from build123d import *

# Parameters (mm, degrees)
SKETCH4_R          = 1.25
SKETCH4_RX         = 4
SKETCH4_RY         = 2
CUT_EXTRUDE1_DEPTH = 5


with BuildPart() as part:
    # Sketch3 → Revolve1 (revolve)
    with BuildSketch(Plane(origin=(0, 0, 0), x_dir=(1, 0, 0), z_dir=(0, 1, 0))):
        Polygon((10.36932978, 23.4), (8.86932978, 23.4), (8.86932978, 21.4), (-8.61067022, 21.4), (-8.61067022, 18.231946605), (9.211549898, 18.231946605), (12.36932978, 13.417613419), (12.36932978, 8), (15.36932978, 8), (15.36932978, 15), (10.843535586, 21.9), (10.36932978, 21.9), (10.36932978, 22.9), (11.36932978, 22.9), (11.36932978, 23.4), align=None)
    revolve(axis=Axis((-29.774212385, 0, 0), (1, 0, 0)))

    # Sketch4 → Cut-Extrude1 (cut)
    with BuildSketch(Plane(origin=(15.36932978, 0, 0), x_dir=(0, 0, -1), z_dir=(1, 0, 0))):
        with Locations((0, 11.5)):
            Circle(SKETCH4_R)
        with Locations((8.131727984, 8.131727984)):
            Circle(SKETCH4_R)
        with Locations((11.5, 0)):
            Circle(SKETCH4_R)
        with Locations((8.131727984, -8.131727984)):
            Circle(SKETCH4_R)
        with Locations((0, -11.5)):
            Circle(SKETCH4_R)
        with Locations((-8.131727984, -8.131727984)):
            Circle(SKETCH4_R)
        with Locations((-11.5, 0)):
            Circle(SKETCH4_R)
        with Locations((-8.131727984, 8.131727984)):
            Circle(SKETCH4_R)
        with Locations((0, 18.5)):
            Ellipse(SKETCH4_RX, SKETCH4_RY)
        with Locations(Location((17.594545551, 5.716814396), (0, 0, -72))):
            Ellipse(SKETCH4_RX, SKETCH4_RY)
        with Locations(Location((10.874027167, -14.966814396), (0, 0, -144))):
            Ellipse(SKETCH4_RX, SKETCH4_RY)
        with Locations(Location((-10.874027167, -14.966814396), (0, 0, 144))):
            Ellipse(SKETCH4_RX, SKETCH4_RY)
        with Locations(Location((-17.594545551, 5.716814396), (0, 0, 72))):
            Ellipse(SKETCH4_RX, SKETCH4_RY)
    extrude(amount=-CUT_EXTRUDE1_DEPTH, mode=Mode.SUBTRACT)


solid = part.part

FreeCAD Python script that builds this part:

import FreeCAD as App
import Part
import Sketcher
Q = App.Units.Quantity


def add_polygon(sketch, points):
    """Adds a closed chain of lines whose ends are joined by coincident constraints."""
    first, n = sketch.GeometryCount, len(points)
    for a, b in zip(points, points[1:] + points[:1]):
        sketch.addGeometry(Part.LineSegment(App.Vector(*a, 0), App.Vector(*b, 0)), False)
    for i in range(n):
        sketch.addConstraint(Sketcher.Constraint("Coincident", first + i, 2, first + (i + 1) % n, 1))

doc = App.newDocument("Part")
body = doc.addObject("PartDesign::Body", "Body")

# Sketch on XZ plane
sketch1 = body.newObject("Sketcher::SketchObject", "Sketch")
sketch1.AttachmentSupport = (doc.getObject("XZ_Plane"), [""])
sketch1.MapMode = "FlatFace"
add_polygon(sketch1, [(8.87, -23.4), (8.87, -21.4), (-8.61, -21.4), (-8.61, -18.23), (9.21, -18.23), (12.37, -13.42), (12.37, -8), (15.37, -8), (15.37, -15), (10.84, -21.9), (10.37, -21.9), (10.37, -22.9), (11.37, -22.9), (11.37, -23.4)])  # lines 0-13
sketch1.addConstraint(Sketcher.Constraint("Vertical", 0))
sketch1.addConstraint(Sketcher.Constraint("Horizontal", 1))
sketch1.addConstraint(Sketcher.Constraint("Vertical", 2))
sketch1.addConstraint(Sketcher.Constraint("Horizontal", 3))
sketch1.addConstraint(Sketcher.Constraint("Vertical", 5))
sketch1.addConstraint(Sketcher.Constraint("Horizontal", 6))
sketch1.addConstraint(Sketcher.Constraint("Vertical", 7))
sketch1.addConstraint(Sketcher.Constraint("Horizontal", 9))
sketch1.addConstraint(Sketcher.Constraint("Vertical", 10))
sketch1.addConstraint(Sketcher.Constraint("Horizontal", 11))
sketch1.addConstraint(Sketcher.Constraint("Vertical", 12))
sketch1.addConstraint(Sketcher.Constraint("Horizontal", 13))
sketch1.addConstraint(Sketcher.Constraint("Parallel", 4, 8))
sketch1.addConstraint(Sketcher.Constraint("Equal", 11, 10))
sketch1.addConstraint(Sketcher.Constraint("DistanceX", 6, 1, 6, 2, Q("3 mm")))
sketch1.addConstraint(Sketcher.Constraint("DistanceX", 11, 1, 11, 2, Q("1 mm")))
sketch1.addConstraint(Sketcher.Constraint("DistanceY", 0, 1, 0, 2, Q("2 mm")))
sketch1.addConstraint(Sketcher.Constraint("DistanceY", 7, 2, 7, 1, Q("7 mm")))
sketch1.addConstraint(Sketcher.Constraint("DistanceX", 13, 2, 13, 1, Q("2.5 mm")))
sketch1.addConstraint(Sketcher.Constraint("DistanceY", 12, 2, 12, 1, Q("0.5 mm")))
sketch1.addConstraint(Sketcher.Constraint("DistanceY", 5, 2, -1, 1, Q("8 mm")))
sketch1.addConstraint(Sketcher.Constraint("DistanceX", 9, 2, 7, 2, Q("5 mm")))
sketch1.addConstraint(Sketcher.Constraint("DistanceX", 1, 2, 1, 1, Q("17.48 mm")))
sketch1.addConstraint(Sketcher.Constraint("DistanceY", 0, 2, -1, 1, Q("21.4 mm")))
sketch1.addConstraint(Sketcher.Constraint("DistanceX", 3, 1, 3, 2, Q("17.82222 mm")))
sketch1.addConstraint(Sketcher.Constraint("Distance", 4, Q("5.75755 mm")))
sketch1.addConstraint(Sketcher.Constraint("DistanceY", 2, 1, 2, 2, Q("3.168053 mm")))
sketch1.addConstraint(Sketcher.Constraint("DistanceX", -1, 1, 0, 2, Q("8.86933 mm")))
revolution = body.newObject("PartDesign::Revolution", "Revolution")
revolution.Profile = sketch1
revolution.ReferenceAxis = (sketch1, ["H_Axis"])
revolution.Angle = 360

# Sketch on YZ plane
sketch2 = body.newObject("Sketcher::SketchObject", "Sketch001")
sketch2.AttachmentSupport = (doc.getObject("YZ_Plane"), [""])
sketch2.MapMode = "FlatFace"
sketch2.AttachmentOffset = App.Placement(App.Vector(0, 0, 15.36933), App.Rotation())
sketch2.addGeometry(Part.Circle(App.Vector(11.5, 0, 0), App.Vector(0, 0, 1), 1.25), False)
sketch2.addGeometry(Part.Circle(App.Vector(8.131728, -8.131728, 0), App.Vector(0, 0, 1), 1.25), False)
sketch2.addGeometry(Part.Circle(App.Vector(0, -11.5, 0), App.Vector(0, 0, 1), 1.25), False)
sketch2.addGeometry(Part.Circle(App.Vector(-8.131728, -8.131728, 0), App.Vector(0, 0, 1), 1.25), False)
sketch2.addGeometry(Part.Circle(App.Vector(-11.5, 0, 0), App.Vector(0, 0, 1), 1.25), False)
sketch2.addGeometry(Part.Circle(App.Vector(-8.131728, 8.131728, 0), App.Vector(0, 0, 1), 1.25), False)
sketch2.addGeometry(Part.Circle(App.Vector(0, 11.5, 0), App.Vector(0, 0, 1), 1.25), False)
sketch2.addGeometry(Part.Circle(App.Vector(8.131728, 8.131728, 0), App.Vector(0, 0, 1), 1.25), False)
sketch2.addGeometry(Part.Ellipse(App.Vector(18.5, -4, 0), App.Vector(20.5, 0, 0), App.Vector(18.5, 0, 0)), False)
sketch2.addGeometry(Part.Ellipse(App.Vector(1.912588, -18.830614, 0), App.Vector(6.334848, -19.496659, 0), App.Vector(5.716814, -17.594546, 0)), False)
sketch2.addGeometry(Part.Ellipse(App.Vector(-17.317955, -7.637959, 0), App.Vector(-16.584848, -12.049598, 0), App.Vector(-14.966814, -10.874027, 0)), False)
sketch2.addGeometry(Part.Ellipse(App.Vector(-12.615673, 14.110095, 0), App.Vector(-16.584848, 12.049598, 0), App.Vector(-14.966814, 10.874027, 0)), False)
sketch2.addGeometry(Part.Ellipse(App.Vector(9.52104, 16.358478, 0), App.Vector(6.334848, 19.496659, 0), App.Vector(5.716814, 17.594546, 0)), False)
sketch2.addConstraint(Sketcher.Constraint("Block", 8))
sketch2.addConstraint(Sketcher.Constraint("Block", 9))
sketch2.addConstraint(Sketcher.Constraint("Block", 10))
sketch2.addConstraint(Sketcher.Constraint("Block", 11))
sketch2.addConstraint(Sketcher.Constraint("Block", 12))
sketch2.addConstraint(Sketcher.Constraint("Equal", 0, 1))
sketch2.addConstraint(Sketcher.Constraint("Equal", 1, 2))
sketch2.addConstraint(Sketcher.Constraint("Equal", 2, 3))
sketch2.addConstraint(Sketcher.Constraint("Equal", 3, 4))
sketch2.addConstraint(Sketcher.Constraint("Equal", 4, 5))
sketch2.addConstraint(Sketcher.Constraint("Equal", 5, 6))
sketch2.addConstraint(Sketcher.Constraint("Equal", 6, 7))
sketch2.addConstraint(Sketcher.Constraint("Symmetric", 0, 3, 4, 3, -1, 1))
sketch2.addConstraint(Sketcher.Constraint("Symmetric", 1, 3, 5, 3, -1, 1))
sketch2.addConstraint(Sketcher.Constraint("Symmetric", 2, 3, 6, 3, -1, 1))
sketch2.addConstraint(Sketcher.Constraint("Symmetric", 3, 3, 7, 3, -1, 1))
sketch2.addConstraint(Sketcher.Constraint("Symmetric", 1, 3, 3, 3, -2))
sketch2.addConstraint(Sketcher.Constraint("PointOnObject", 0, 3, -1))
sketch2.addConstraint(Sketcher.Constraint("PointOnObject", 2, 3, -2))
sketch2.addConstraint(Sketcher.Constraint("Diameter", 0, Q("2.5 mm")))
sketch2.addConstraint(Sketcher.Constraint("DistanceX", 4, 3, 0, 3, Q("23 mm")))
sketch2.addConstraint(Sketcher.Constraint("DistanceY", 2, 3, -1, 1, Q("11.5 mm")))
sketch2.addConstraint(Sketcher.Constraint("DistanceX", -1, 1, 1, 3, Q("8.131728 mm")))
sketch2.addConstraint(Sketcher.Constraint("DistanceY", 1, 3, -1, 1, Q("8.131728 mm")))
pocket1 = body.newObject("PartDesign::Pocket", "Pocket")
pocket1.Profile = sketch2
pocket1.Length = 5

doc.recompute()
